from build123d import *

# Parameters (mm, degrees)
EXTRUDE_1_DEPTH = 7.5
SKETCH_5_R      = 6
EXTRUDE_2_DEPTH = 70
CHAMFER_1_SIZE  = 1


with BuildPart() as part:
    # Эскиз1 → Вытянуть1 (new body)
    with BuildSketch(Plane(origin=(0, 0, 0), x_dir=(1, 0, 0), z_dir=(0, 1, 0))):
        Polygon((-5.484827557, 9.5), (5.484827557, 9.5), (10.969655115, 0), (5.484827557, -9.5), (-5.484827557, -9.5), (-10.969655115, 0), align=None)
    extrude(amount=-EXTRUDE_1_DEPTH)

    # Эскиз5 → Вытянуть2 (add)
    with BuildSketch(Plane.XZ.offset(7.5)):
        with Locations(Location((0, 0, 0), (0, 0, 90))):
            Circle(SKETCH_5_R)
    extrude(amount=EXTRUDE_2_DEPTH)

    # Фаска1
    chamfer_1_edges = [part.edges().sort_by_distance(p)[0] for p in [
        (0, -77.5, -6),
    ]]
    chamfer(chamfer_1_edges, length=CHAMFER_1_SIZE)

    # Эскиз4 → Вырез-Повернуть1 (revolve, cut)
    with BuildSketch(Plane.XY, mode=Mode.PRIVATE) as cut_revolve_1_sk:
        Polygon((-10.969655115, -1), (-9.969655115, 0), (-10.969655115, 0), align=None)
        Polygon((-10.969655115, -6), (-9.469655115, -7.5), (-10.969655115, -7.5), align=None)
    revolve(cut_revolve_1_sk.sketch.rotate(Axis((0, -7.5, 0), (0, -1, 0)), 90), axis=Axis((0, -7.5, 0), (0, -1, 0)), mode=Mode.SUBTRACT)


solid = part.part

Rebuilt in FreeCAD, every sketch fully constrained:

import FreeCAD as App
import Part
import Sketcher

V = App.Vector
Q = App.Units.Quantity


def edges_at(feature, points):
    """Names of the edges that pass closest to the given points."""
    edges = feature.Shape.Edges
    near = lambda p: min(range(len(edges)), key=lambda i: edges[i].distToShape(Part.Vertex(*p))[0])
    return sorted({f"Edge{near(p) + 1}" for p in points})

doc = App.newDocument("Part")
params = doc.addObject("Spreadsheet::Sheet", "Params")
for row, (alias, value) in enumerate([
    ("pad1_length", "7.5 mm"),
    ("sketch2_diameter", "12 mm"),
    ("pad2_length", "70 mm"),
    ("chamfer_size", "1 mm"),
    ("sketch3_width", "1 mm"),
    ("sketch3_width2", "1.5 mm"),
    ("groove_angle", "360 deg"),
], start=1):
    params.set(f"A{row}", alias)
    params.set(f"B{row}", "=" + value)
    params.setAlias(f"B{row}", alias)

body = doc.addObject("PartDesign::Body", "Body")

sketch1 = body.newObject("Sketcher::SketchObject", "Sketch")
sketch1.AttachmentSupport = (doc.getObject("XZ_Plane"), [""])
sketch1.MapMode = "FlatFace"
sketch1.addGeometry([
    Part.LineSegment(V(5, -10, 0), V(-5, -10, 0)),
    Part.LineSegment(V(-5, -10, 0), V(-11, 0, 0)),
    Part.LineSegment(V(-11, 0, 0), V(-5, 10, 0)),
    Part.LineSegment(V(-5, 10, 0), V(5, 10, 0)),
    Part.LineSegment(V(5, 10, 0), V(11, 0, 0)),
    Part.LineSegment(V(11, 0, 0), V(5, -10, 0)),
], False)
sketch1.addConstraint([
    Sketcher.Constraint("Coincident", 0, 2, 1, 1),
    Sketcher.Constraint("Coincident", 1, 2, 2, 1),
    Sketcher.Constraint("Coincident", 2, 2, 3, 1),
    Sketcher.Constraint("Coincident", 3, 2, 4, 1),
    Sketcher.Constraint("Coincident", 4, 2, 5, 1),
    Sketcher.Constraint("Coincident", 5, 2, 0, 1),
    Sketcher.Constraint("Horizontal", 0),
    Sketcher.Constraint("Horizontal", 3),
    Sketcher.Constraint("Symmetric", 0, 2, 3, 2, -1, 1),
    Sketcher.Constraint("Symmetric", 1, 2, 4, 2, -1, 1),
    Sketcher.Constraint("PointOnObject", 1, 2, -1),
    Sketcher.Constraint("Parallel", 2, 5),
    Sketcher.Constraint("Vertical", 0, 2, 2, 2),
    Sketcher.Constraint("Angle", 1, Q("120 deg")),
    Sketcher.Constraint("DistanceY", 0, 2, 2, 2, 19.0),
    Sketcher.Constraint("DistanceX", 0, 2, 0, 1, 10.969655),
])
pad1 = body.newObject("PartDesign::Pad", "Pad")
pad1.Profile = sketch1
pad1.setExpression("Length", "Params.pad1_length")

sketch2 = body.newObject("Sketcher::SketchObject", "Sketch001")
sketch2.AttachmentSupport = (doc.getObject("XZ_Plane"), [""])
sketch2.MapMode = "FlatFace"
sketch2.AttachmentOffset = App.Placement(V(0, 0, 7.5), App.Rotation())
sketch2.addGeometry(Part.Circle(V(0, 0, 0), V(0, 0, 1), 6), False)
sketch2.addConstraint([
    Sketcher.Constraint("Coincident", 0, 3, -1, 1),
    Sketcher.Constraint("Diameter", 0, 12.0),
])
sketch2.setExpression("Constraints[1]", "Params.sketch2_diameter")
pad2 = body.newObject("PartDesign::Pad", "Pad001")
pad2.Profile = sketch2
pad2.setExpression("Length", "Params.pad2_length")
doc.recompute()

chamfer = body.newObject("PartDesign::Chamfer", "Chamfer")
chamfer.Base = (pad2, edges_at(pad2, [(0, -77.5, -6)]))
chamfer.setExpression("Size", "Params.chamfer_size")

sketch3 = body.newObject("Sketcher::SketchObject", "Sketch002")
sketch3.AttachmentSupport = (doc.getObject("XY_Plane"), [""])
sketch3.MapMode = "FlatFace"
sketch3.addGeometry([
    Part.LineSegment(V(-11, -1, 0), V(-10, 0, 0)),
    Part.LineSegment(V(-10, 0, 0), V(-11, 0, 0)),
    Part.LineSegment(V(-11, 0, 0), V(-11, -1, 0)),
    Part.LineSegment(V(-9.5, -7.5, 0), V(-11, -6, 0)),
    Part.LineSegment(V(-11, -6, 0), V(-11, -7.5, 0)),
    Part.LineSegment(V(-11, -7.5, 0), V(-9.5, -7.5, 0)),
], False)
sketch3.addConstraint([
    Sketcher.Constraint("Coincident", 0, 2, 1, 1),
    Sketcher.Constraint("Coincident", 1, 2, 2, 1),
    Sketcher.Constraint("Coincident", 2, 2, 0, 1),
    Sketcher.Constraint("Coincident", 3, 2, 4, 1),
    Sketcher.Constraint("Coincident", 4, 2, 5, 1),
    Sketcher.Constraint("Coincident", 5, 2, 3, 1),
    Sketcher.Constraint("Horizontal", 1),
    Sketcher.Constraint("Vertical", 2),
    Sketcher.Constraint("Vertical", 4),
    Sketcher.Constraint("Horizontal", 5),
    Sketcher.Constraint("PointOnObject", 0, 2, -1),
    Sketcher.Constraint("Perpendicular", 0, 3),
    Sketcher.Constraint("Vertical", 2, 2, 3, 2),
    Sketcher.Constraint("Equal", 1, 2),
    Sketcher.Constraint("DistanceX", 1, 2, 1, 1, 1.0),
    Sketcher.Constraint("DistanceX", 5, 1, 5, 2, 1.5),
    Sketcher.Constraint("DistanceY", 3, 2, -1, 1, 6.0),
    Sketcher.Constraint("DistanceX", 0, 2, -1, 1, 9.969655),
])
sketch3.setExpression("Constraints[14]", "Params.sketch3_width")
sketch3.setExpression("Constraints[15]", "Params.sketch3_width2")
groove = body.newObject("PartDesign::Groove", "Groove")
groove.Profile = sketch3
groove.ReferenceAxis = (sketch3, ["V_Axis"])
groove.setExpression("Angle", "Params.groove_angle")

doc.recompute()
